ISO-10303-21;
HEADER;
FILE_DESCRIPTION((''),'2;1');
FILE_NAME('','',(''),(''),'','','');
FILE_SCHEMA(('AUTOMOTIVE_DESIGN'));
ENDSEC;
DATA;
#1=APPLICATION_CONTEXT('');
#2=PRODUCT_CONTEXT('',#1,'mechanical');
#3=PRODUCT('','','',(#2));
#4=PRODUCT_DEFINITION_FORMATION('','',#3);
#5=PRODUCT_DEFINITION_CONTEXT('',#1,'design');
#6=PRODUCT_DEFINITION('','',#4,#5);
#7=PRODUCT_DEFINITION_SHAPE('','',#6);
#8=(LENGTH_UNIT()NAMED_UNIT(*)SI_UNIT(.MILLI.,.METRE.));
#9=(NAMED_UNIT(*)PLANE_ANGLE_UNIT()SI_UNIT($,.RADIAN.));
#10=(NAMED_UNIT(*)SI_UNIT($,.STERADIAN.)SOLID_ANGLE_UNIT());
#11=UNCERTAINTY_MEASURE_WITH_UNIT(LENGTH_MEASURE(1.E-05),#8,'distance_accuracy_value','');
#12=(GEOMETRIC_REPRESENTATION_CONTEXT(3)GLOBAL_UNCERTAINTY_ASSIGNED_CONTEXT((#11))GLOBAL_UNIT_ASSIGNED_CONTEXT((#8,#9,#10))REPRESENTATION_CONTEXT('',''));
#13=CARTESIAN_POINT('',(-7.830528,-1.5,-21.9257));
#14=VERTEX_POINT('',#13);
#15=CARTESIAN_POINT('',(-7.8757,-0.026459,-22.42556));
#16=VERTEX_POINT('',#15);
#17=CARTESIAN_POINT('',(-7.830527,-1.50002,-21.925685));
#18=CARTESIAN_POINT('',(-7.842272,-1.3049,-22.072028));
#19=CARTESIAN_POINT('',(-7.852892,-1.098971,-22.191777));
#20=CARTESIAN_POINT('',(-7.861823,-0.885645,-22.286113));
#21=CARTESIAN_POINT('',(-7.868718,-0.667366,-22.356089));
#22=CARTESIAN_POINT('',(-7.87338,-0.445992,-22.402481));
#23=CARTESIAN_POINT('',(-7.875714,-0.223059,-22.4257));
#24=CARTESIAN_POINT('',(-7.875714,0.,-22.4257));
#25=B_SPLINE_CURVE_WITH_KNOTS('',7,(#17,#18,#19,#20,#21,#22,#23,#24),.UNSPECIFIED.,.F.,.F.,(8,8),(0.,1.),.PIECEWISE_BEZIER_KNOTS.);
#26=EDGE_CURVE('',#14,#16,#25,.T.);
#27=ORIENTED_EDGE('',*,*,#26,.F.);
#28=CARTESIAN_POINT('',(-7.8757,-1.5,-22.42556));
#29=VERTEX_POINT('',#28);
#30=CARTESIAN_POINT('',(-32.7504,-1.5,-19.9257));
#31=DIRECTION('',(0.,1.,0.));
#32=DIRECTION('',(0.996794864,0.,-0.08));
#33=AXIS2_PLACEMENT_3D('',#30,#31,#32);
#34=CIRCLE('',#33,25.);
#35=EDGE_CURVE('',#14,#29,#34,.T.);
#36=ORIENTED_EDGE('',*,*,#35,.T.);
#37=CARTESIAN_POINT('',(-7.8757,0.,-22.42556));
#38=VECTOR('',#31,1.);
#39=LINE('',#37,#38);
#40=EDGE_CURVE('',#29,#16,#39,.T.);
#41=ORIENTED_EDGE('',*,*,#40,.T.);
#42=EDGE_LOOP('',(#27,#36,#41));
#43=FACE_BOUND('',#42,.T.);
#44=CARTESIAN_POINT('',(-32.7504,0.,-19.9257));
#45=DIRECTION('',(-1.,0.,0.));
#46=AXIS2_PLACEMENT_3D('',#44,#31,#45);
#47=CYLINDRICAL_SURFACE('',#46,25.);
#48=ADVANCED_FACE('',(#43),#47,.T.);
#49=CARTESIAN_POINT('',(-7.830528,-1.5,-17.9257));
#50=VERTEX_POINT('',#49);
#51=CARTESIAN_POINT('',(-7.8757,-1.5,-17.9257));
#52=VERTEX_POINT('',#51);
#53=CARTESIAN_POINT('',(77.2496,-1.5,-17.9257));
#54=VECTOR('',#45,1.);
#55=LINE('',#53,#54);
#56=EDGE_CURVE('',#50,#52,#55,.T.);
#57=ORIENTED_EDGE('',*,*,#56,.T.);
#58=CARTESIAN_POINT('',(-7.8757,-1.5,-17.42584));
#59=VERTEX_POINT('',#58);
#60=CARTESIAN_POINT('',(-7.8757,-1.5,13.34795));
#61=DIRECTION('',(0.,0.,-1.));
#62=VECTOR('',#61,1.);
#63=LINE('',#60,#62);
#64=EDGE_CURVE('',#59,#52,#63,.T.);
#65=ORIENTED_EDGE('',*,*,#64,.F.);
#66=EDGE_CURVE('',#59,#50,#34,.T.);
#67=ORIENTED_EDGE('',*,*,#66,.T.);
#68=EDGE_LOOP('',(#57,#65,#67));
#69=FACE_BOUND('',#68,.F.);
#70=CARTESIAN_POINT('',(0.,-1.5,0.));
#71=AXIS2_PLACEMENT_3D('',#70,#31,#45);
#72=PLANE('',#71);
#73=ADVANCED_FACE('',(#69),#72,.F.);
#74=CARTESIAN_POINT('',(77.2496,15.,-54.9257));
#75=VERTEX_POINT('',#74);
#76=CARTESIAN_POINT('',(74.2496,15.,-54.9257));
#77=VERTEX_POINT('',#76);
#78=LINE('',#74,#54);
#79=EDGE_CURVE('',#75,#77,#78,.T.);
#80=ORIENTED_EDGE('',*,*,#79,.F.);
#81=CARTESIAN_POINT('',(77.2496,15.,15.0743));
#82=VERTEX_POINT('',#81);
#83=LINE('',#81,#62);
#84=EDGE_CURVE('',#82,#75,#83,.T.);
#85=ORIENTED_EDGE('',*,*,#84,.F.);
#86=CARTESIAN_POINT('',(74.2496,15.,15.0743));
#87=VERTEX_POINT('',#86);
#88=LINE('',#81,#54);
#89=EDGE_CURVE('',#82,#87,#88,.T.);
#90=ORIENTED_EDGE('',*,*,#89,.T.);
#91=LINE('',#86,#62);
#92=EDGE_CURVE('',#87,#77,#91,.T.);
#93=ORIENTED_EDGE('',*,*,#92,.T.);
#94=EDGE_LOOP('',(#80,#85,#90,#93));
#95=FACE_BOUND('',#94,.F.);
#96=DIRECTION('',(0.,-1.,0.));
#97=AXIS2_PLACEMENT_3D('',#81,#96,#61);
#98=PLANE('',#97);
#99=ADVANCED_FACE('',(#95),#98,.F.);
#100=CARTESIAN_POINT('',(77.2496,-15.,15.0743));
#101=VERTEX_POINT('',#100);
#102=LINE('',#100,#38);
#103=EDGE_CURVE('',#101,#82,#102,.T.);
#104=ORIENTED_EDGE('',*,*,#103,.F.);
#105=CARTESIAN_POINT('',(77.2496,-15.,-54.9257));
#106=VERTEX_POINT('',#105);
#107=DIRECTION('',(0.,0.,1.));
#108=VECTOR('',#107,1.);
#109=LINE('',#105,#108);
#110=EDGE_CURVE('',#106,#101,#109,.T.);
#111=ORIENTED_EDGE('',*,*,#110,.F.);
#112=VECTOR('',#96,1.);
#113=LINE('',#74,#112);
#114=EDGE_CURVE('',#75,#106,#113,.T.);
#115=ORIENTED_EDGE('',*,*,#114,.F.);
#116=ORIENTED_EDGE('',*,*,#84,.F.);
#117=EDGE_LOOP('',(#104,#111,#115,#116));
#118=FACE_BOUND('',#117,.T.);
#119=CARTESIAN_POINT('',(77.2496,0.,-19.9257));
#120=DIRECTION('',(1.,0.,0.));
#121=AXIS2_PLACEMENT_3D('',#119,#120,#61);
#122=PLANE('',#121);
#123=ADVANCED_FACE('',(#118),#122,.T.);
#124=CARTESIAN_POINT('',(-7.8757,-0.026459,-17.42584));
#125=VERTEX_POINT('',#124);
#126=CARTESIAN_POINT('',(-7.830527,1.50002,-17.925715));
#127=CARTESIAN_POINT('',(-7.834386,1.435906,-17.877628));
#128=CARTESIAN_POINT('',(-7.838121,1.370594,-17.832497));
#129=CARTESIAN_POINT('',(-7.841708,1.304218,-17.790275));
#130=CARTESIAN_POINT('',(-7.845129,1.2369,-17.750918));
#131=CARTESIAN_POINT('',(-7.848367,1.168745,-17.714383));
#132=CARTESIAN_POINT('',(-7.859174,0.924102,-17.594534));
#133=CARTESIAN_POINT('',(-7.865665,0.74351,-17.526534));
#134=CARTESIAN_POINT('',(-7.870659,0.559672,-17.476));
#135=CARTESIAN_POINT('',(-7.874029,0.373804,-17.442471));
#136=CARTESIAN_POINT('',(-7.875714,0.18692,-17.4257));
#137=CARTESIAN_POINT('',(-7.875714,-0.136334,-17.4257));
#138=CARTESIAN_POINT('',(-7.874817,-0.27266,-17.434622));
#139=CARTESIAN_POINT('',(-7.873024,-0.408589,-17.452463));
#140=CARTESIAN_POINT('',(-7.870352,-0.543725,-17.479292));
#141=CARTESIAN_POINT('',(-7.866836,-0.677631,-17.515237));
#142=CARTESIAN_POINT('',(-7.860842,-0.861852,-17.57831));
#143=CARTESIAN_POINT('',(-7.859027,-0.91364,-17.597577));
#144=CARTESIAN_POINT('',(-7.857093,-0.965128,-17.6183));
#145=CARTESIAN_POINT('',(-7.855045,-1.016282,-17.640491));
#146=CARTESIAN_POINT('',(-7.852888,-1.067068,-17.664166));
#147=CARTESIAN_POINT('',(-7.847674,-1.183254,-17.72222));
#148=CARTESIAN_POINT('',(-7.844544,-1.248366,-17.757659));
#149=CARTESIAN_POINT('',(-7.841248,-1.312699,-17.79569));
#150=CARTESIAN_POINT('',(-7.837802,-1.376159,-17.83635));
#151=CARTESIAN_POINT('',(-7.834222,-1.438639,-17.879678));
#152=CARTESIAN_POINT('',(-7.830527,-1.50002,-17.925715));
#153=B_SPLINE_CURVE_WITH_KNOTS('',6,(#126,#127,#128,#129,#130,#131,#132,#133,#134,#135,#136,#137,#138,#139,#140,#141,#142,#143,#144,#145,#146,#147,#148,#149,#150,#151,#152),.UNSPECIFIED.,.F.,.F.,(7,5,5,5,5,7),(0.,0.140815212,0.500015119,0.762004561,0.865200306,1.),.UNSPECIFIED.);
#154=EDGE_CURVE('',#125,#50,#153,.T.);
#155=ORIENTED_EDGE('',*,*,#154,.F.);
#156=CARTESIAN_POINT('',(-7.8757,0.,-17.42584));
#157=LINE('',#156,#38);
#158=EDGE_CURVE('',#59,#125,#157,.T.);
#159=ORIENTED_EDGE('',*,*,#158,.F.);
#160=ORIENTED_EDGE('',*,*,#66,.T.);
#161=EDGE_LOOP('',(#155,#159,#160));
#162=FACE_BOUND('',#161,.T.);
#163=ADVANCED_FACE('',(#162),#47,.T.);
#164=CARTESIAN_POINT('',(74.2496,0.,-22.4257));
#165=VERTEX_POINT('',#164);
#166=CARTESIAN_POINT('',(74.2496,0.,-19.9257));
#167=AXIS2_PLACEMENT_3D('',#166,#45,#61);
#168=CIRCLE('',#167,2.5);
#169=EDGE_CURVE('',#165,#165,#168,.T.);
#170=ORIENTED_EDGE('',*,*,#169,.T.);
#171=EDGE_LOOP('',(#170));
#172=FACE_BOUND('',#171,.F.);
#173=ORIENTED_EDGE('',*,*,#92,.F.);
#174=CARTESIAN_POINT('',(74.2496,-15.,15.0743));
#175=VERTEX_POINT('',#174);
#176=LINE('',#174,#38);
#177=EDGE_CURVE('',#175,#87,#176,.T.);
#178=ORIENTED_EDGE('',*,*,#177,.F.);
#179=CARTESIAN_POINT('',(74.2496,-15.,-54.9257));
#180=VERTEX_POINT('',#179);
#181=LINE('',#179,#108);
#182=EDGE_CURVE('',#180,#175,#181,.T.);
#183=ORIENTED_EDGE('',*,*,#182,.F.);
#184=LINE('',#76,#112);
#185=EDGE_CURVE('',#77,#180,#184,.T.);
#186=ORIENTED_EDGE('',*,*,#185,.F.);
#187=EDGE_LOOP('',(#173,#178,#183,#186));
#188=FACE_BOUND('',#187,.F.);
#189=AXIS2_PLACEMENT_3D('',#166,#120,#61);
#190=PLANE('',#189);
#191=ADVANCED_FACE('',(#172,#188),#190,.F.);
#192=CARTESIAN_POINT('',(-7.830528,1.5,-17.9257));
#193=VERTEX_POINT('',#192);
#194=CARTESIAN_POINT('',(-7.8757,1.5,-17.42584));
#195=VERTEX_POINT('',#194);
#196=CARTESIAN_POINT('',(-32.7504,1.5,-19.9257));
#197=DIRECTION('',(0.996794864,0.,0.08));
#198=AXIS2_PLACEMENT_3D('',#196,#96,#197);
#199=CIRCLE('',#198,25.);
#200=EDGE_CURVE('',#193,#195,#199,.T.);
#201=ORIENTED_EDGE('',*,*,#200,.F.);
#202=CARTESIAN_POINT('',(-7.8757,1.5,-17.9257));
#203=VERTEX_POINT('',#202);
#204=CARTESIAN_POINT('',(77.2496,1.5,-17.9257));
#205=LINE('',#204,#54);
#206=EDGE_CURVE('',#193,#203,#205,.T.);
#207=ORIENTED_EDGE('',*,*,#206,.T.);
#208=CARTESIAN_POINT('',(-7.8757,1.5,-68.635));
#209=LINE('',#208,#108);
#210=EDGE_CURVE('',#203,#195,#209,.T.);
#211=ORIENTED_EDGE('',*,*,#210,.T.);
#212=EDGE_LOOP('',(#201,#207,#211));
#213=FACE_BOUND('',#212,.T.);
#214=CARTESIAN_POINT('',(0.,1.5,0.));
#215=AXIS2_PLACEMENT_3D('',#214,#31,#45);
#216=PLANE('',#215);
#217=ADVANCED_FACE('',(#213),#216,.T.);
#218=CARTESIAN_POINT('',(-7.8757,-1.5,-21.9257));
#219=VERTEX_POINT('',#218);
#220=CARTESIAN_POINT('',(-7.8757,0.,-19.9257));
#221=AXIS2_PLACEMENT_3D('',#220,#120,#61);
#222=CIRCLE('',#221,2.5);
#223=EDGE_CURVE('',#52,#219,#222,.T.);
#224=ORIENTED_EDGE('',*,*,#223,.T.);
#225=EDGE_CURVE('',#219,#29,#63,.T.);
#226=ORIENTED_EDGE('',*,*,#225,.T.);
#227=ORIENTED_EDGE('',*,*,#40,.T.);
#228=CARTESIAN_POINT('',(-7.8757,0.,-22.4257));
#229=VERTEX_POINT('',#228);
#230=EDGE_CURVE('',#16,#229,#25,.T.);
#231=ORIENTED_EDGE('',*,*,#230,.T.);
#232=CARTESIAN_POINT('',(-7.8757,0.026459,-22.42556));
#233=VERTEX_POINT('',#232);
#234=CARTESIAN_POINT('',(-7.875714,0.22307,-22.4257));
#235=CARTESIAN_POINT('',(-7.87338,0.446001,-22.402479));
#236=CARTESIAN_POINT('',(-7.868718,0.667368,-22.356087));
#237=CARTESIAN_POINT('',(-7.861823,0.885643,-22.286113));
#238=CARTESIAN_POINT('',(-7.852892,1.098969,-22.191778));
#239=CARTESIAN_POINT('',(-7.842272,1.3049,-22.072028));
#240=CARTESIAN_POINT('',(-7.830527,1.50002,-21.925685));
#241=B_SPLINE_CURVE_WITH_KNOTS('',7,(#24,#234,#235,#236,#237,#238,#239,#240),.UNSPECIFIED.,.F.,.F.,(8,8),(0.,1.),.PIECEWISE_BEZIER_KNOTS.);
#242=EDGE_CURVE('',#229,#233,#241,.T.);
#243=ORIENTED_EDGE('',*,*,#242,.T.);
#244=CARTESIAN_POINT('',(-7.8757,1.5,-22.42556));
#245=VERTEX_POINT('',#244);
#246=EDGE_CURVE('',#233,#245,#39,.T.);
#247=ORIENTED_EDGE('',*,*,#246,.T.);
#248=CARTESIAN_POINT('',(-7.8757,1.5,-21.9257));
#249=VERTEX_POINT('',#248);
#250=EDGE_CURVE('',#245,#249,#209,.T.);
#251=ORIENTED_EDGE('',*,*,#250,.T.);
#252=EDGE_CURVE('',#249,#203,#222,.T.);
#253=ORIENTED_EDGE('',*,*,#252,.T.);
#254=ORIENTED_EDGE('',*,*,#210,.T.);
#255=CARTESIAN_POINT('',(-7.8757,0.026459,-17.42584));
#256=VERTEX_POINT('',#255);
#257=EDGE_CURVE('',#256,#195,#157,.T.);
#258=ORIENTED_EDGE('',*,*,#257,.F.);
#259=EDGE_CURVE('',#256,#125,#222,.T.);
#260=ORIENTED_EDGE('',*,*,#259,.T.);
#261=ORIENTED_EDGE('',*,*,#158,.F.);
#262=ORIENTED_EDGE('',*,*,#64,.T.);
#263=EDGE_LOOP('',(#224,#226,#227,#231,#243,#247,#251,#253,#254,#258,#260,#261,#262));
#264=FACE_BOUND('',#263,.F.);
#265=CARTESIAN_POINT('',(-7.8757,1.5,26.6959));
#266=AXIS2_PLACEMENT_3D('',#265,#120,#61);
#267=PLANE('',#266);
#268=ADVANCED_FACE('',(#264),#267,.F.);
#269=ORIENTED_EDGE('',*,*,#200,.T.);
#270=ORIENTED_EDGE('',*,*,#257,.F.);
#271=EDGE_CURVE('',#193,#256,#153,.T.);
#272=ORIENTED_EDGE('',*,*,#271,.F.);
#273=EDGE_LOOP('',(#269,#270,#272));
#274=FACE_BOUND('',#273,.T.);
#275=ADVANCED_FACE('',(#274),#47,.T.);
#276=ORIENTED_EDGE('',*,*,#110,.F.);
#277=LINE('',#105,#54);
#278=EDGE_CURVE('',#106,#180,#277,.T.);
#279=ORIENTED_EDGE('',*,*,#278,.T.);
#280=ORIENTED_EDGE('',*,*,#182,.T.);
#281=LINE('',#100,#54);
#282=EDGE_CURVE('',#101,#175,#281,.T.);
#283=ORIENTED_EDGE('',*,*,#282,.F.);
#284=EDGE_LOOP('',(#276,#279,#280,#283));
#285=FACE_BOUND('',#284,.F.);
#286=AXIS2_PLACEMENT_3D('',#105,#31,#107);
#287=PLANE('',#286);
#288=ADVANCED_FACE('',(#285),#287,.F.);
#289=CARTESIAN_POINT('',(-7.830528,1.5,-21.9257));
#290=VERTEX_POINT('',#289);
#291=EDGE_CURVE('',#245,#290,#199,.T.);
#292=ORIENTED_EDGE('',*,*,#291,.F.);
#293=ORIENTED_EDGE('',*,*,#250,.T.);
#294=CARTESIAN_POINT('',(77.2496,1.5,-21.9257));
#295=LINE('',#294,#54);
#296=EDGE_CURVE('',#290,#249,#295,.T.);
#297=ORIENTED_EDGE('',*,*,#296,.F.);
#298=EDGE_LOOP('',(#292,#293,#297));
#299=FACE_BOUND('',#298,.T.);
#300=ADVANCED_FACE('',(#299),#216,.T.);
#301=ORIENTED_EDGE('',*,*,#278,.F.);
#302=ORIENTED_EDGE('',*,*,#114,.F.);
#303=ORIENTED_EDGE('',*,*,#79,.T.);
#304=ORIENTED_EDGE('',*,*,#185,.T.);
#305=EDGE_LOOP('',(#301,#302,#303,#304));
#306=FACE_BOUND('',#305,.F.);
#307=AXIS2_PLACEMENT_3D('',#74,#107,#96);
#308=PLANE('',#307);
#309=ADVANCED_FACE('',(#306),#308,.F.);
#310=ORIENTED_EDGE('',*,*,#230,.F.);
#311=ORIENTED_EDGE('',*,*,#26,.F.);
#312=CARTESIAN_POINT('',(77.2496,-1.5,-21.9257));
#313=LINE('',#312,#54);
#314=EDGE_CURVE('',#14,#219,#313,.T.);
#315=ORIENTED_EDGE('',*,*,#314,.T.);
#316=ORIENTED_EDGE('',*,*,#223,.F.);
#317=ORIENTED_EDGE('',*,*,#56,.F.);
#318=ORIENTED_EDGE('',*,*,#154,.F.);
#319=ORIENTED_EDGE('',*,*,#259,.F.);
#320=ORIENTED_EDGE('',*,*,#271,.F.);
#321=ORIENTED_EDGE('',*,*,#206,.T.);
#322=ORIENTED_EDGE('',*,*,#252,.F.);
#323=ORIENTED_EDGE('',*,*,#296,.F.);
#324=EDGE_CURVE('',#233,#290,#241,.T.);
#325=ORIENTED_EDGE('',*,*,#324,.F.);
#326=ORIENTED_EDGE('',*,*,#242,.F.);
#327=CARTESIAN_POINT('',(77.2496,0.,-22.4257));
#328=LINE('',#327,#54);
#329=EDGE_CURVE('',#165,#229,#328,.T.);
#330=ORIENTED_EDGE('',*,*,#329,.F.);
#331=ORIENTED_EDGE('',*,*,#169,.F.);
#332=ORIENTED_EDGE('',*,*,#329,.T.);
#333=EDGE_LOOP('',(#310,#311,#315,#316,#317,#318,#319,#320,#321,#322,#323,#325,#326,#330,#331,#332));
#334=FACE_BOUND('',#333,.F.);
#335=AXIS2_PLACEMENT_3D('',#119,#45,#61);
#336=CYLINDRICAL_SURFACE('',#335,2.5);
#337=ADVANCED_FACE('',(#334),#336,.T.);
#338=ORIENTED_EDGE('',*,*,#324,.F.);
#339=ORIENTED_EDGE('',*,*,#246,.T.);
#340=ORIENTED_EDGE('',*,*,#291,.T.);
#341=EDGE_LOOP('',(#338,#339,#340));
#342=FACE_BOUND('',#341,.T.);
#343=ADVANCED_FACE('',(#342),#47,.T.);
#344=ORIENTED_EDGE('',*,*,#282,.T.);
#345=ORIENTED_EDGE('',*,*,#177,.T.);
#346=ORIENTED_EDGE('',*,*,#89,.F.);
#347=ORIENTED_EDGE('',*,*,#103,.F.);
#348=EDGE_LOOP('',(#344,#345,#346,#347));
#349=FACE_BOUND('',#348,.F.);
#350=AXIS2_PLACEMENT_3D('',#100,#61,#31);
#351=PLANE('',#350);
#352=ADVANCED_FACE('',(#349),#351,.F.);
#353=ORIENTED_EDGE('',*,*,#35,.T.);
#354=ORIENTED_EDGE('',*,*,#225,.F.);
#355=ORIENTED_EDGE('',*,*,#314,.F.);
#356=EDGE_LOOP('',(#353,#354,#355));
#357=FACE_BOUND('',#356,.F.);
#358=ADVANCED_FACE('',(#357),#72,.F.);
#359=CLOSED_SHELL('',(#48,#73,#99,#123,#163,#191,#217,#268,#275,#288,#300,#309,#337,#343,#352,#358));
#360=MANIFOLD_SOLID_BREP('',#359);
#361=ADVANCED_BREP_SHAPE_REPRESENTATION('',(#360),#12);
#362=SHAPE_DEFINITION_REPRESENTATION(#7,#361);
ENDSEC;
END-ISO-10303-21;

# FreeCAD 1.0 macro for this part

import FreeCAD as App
import Part
import Sketcher

doc = App.newDocument("Part")
body = doc.addObject("PartDesign::Body", "Body")

# Sketch on XZ plane
sketch1 = doc.addObject("Sketcher::SketchObject", "Sketch")
body.addObject(sketch1)
sketch1.AttachmentSupport = (doc.XZ_Plane, [""])
sketch1.MapMode = "FlatFace"
sketch1.addGeometry(Part.Circle(App.Vector(-33, -20, 0), App.Vector(0, 0, 1), 25), False)
sketch1.addConstraint(Sketcher.Constraint("Diameter", 0, 50.0))
sketch1.addConstraint(Sketcher.Constraint("DistanceX", 0, 3, -1, 1, 32.7504))
sketch1.addConstraint(Sketcher.Constraint("DistanceY", 0, 3, -1, 1, 19.9257))
pad1 = doc.addObject("PartDesign::Pad", "Pad")
body.addObject(pad1)
pad1.Profile = sketch1
pad1.Type = "TwoLengths"
pad1.Length = 1.5
pad1.Length2 = 1.5
pad1.Reversed = True

# Sketch on XZ plane
sketch2 = doc.addObject("Sketcher::SketchObject", "Sketch001")
body.addObject(sketch2)
sketch2.AttachmentSupport = (doc.XZ_Plane, [""])
sketch2.MapMode = "FlatFace"
sketch2.addGeometry(Part.LineSegment(App.Vector(77.2, -22.4, 0), App.Vector(-7.9, -22.4, 0)), False)
sketch2.addGeometry(Part.LineSegment(App.Vector(-7.9, -22.4, 0), App.Vector(-7.9, -19.9, 0)), False)
sketch2.addGeometry(Part.LineSegment(App.Vector(-7.9, -19.9, 0), App.Vector(77.2, -19.9, 0)), False)
sketch2.addGeometry(Part.LineSegment(App.Vector(77.2, -19.9, 0), App.Vector(77.2, -22.4, 0)), False)
sketch2.addGeometry(Part.LineSegment(App.Vector(-7.9, -19.9, 0), App.Vector(77.2, -19.9, 0)), True)  # axis
sketch2.addConstraint(Sketcher.Constraint("Coincident", 0, 2, 1, 1))
sketch2.addConstraint(Sketcher.Constraint("Coincident", 1, 2, 2, 1))
sketch2.addConstraint(Sketcher.Constraint("Coincident", 2, 2, 3, 1))
sketch2.addConstraint(Sketcher.Constraint("Coincident", 3, 2, 0, 1))
sketch2.addConstraint(Sketcher.Constraint("Horizontal", 0))
sketch2.addConstraint(Sketcher.Constraint("Vertical", 1))
sketch2.addConstraint(Sketcher.Constraint("Horizontal", 2))
sketch2.addConstraint(Sketcher.Constraint("Vertical", 3))
sketch2.addConstraint(Sketcher.Constraint("Horizontal", 4))
sketch2.addConstraint(Sketcher.Constraint("Coincident", 4, 1, 1, 2))
sketch2.addConstraint(Sketcher.Constraint("Vertical", 3, 2, 4, 2))
sketch2.addConstraint(Sketcher.Constraint("DistanceY", 1, 1, 1, 2, 2.5))
sketch2.addConstraint(Sketcher.Constraint("DistanceX", 0, 2, 0, 1, 85.1253))
sketch2.addConstraint(Sketcher.Constraint("DistanceX", 0, 2, -1, 1, 7.8757))
sketch2.addConstraint(Sketcher.Constraint("DistanceY", 0, 2, -1, 1, 22.4257))
revolution = doc.addObject("PartDesign::Revolution", "Revolution")
body.addObject(revolution)
revolution.Profile = sketch2
revolution.ReferenceAxis = (sketch2, ["Axis0"])
revolution.Angle = 360

# Sketch on YZ plane
sketch3 = doc.addObject("Sketcher::SketchObject", "Sketch002")
body.addObject(sketch3)
sketch3.AttachmentSupport = (doc.YZ_Plane, [""])
sketch3.MapMode = "FlatFace"
sketch3.AttachmentOffset = App.Placement(App.Vector(0, 0, 77.2496), App.Rotation())
sketch3.addGeometry(Part.LineSegment(App.Vector(-15, 15, 0), App.Vector(-15, -55, 0)), False)
sketch3.addGeometry(Part.LineSegment(App.Vector(-15, -55, 0), App.Vector(15, -55, 0)), False)
sketch3.addGeometry(Part.LineSegment(App.Vector(15, -55, 0), App.Vector(15, 15, 0)), False)
sketch3.addGeometry(Part.LineSegment(App.Vector(15, 15, 0), App.Vector(-15, 15, 0)), False)
sketch3.addConstraint(Sketcher.Constraint("Coincident", 0, 2, 1, 1))
sketch3.addConstraint(Sketcher.Constraint("Coincident", 1, 2, 2, 1))
sketch3.addConstraint(Sketcher.Constraint("Coincident", 2, 2, 3, 1))
sketch3.addConstraint(Sketcher.Constraint("Coincident", 3, 2, 0, 1))
sketch3.addConstraint(Sketcher.Constraint("Vertical", 0))
sketch3.addConstraint(Sketcher.Constraint("Horizontal", 1))
sketch3.addConstraint(Sketcher.Constraint("Vertical", 2))
sketch3.addConstraint(Sketcher.Constraint("Horizontal", 3))
sketch3.addConstraint(Sketcher.Constraint("DistanceX", 1, 1, 1, 2, 30.0))
sketch3.addConstraint(Sketcher.Constraint("DistanceY", 0, 2, 0, 1, 70.0))
sketch3.addConstraint(Sketcher.Constraint("DistanceX", 0, 2, -1, 1, 15.0))
sketch3.addConstraint(Sketcher.Constraint("DistanceY", 0, 2, -1, 1, 54.9257))
pad2 = doc.addObject("PartDesign::Pad", "Pad001")
body.addObject(pad2)
pad2.Profile = sketch3
pad2.Length = 3
pad2.Reversed = True

# Sketch on XZ plane
sketch4 = doc.addObject("Sketcher::SketchObject", "Sketch003")
body.addObject(sketch4)
sketch4.AttachmentSupport = (doc.XZ_Plane, [""])
sketch4.MapMode = "FlatFace"
sketch4.AttachmentOffset = App.Placement(App.Vector(0, 0, -1.5), App.Rotation())
sketch4.addGeometry(Part.LineSegment(App.Vector(-8, 27, 0), App.Vector(-8, -69, 0)), False)
sketch4.addGeometry(Part.LineSegment(App.Vector(-8, -69, 0), App.Vector(-60, -69, 0)), False)
sketch4.addGeometry(Part.LineSegment(App.Vector(-60, -69, 0), App.Vector(-60, 27, 0)), False)
sketch4.addGeometry(Part.LineSegment(App.Vector(-60, 27, 0), App.Vector(-8, 27, 0)), False)
sketch4.addConstraint(Sketcher.Constraint("Coincident", 0, 2, 1, 1))
sketch4.addConstraint(Sketcher.Constraint("Coincident", 1, 2, 2, 1))
sketch4.addConstraint(Sketcher.Constraint("Coincident", 2, 2, 3, 1))
sketch4.addConstraint(Sketcher.Constraint("Coincident", 3, 2, 0, 1))
sketch4.addConstraint(Sketcher.Constraint("Vertical", 0))
sketch4.addConstraint(Sketcher.Constraint("Horizontal", 1))
sketch4.addConstraint(Sketcher.Constraint("Vertical", 2))
sketch4.addConstraint(Sketcher.Constraint("Horizontal", 3))
sketch4.addConstraint(Sketcher.Constraint("DistanceY", 0, 2, 0, 1, 95.331))
sketch4.addConstraint(Sketcher.Constraint("DistanceX", 1, 2, 1, 1, 52.0223))
sketch4.addConstraint(Sketcher.Constraint("DistanceY", 0, 2, -1, 1, 68.635))
sketch4.addConstraint(Sketcher.Constraint("DistanceX", 1, 2, -1, 1, 59.898))
pocket1 = doc.addObject("PartDesign::Pocket", "Pocket")
body.addObject(pocket1)
pocket1.Profile = sketch4
pocket1.Length = 10
pocket1.Reversed = True

doc.recompute()
